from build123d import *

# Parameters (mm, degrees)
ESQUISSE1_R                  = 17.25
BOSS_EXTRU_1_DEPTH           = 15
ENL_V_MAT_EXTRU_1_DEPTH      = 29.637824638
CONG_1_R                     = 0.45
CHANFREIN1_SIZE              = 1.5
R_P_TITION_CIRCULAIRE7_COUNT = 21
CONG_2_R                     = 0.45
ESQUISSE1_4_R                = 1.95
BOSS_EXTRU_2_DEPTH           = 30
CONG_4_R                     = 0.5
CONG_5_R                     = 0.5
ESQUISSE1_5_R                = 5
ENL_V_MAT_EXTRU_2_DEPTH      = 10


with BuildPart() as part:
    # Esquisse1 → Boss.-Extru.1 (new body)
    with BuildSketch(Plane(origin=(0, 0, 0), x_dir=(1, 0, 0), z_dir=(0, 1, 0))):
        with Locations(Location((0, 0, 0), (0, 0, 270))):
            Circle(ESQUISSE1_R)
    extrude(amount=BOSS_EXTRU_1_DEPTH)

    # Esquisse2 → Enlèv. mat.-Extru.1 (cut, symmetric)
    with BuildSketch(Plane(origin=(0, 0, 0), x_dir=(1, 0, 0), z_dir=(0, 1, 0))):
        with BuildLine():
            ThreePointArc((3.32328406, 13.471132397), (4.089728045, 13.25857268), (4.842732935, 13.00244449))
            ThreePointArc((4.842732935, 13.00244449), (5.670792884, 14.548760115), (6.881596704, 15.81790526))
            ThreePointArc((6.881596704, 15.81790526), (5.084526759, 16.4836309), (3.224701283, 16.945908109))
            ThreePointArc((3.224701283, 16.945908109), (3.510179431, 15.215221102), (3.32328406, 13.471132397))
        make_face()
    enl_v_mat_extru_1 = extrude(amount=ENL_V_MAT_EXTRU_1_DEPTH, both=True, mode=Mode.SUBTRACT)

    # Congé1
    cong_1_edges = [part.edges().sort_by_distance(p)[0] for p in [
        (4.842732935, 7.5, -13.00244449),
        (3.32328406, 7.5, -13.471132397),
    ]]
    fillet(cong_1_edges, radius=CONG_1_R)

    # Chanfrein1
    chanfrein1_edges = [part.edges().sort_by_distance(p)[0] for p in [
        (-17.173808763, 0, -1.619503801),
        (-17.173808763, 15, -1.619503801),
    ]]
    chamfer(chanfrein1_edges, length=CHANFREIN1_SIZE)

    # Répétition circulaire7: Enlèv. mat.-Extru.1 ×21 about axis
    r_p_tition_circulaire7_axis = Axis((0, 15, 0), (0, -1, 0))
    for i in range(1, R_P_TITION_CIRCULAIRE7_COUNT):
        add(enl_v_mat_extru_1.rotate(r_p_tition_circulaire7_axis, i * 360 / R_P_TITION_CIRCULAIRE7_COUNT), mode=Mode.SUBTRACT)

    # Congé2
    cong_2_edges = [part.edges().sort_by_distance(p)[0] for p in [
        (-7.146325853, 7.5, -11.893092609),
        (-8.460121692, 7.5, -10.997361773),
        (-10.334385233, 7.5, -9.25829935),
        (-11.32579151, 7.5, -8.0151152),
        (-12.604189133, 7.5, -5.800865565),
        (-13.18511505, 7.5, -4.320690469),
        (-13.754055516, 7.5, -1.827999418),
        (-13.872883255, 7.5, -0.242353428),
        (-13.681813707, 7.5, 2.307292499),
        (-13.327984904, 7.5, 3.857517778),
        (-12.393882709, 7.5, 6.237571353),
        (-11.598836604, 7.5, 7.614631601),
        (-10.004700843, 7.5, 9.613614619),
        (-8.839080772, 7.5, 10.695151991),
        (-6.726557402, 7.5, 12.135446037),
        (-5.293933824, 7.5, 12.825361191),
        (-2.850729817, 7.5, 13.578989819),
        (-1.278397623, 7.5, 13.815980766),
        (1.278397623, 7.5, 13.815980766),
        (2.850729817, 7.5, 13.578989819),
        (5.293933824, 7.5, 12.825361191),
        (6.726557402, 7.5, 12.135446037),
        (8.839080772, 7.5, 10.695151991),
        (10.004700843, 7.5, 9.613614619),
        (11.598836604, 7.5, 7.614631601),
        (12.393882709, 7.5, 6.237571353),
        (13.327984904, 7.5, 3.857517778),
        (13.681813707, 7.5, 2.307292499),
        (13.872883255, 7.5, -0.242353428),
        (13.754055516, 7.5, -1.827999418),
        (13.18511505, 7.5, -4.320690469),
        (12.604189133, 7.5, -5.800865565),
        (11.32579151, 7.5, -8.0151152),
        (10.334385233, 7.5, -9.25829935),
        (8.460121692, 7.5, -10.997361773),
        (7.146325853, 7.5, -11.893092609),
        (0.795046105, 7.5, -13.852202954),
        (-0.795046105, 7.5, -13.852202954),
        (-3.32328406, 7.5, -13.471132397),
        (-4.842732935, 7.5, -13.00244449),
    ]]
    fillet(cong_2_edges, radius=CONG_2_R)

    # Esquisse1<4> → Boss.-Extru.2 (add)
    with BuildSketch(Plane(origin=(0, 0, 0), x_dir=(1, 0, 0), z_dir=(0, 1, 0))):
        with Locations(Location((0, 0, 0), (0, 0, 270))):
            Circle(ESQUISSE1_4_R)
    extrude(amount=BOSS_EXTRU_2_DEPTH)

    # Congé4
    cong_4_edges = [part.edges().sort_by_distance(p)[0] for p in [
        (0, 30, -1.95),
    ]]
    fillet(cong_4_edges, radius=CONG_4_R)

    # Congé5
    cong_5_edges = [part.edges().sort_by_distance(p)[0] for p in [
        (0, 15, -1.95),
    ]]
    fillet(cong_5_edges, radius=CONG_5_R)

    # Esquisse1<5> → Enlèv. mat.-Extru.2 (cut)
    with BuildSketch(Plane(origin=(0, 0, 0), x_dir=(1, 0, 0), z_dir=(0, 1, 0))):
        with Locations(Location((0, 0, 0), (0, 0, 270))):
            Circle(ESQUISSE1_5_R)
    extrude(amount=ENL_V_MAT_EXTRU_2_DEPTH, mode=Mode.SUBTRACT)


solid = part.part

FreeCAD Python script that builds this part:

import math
import FreeCAD as App
import Part
import Sketcher
Q = App.Units.Quantity


def edges_at(feature, points):
    """Names of the edges that pass closest to the given points."""
    edges = feature.Shape.Edges
    near = lambda p: min(range(len(edges)), key=lambda i: edges[i].distToShape(Part.Vertex(*p))[0])
    return sorted({f"Edge{near(p) + 1}" for p in points})

doc = App.newDocument("Part")
params = doc.addObject("Spreadsheet::Sheet", "Params")
for row, (alias, value) in enumerate([
    ("sketch1_diameter", "34.5 mm"),
    ("pad1_length", "15 mm"),
    ("sketch2_radius", "17.25 mm"),
    ("pocket1_length", "59.275649 mm"),
    ("fillet_radius", "0.45 mm"),
    ("chamfer_size", "1.5 mm"),
    ("fillet2_radius", "0.45 mm"),
    ("sketch3_diameter", "3.9 mm"),
    ("pad2_length", "30 mm"),
    ("fillet3_radius", "0.5 mm"),
    ("fillet4_radius", "0.5 mm"),
    ("sketch4_diameter", "10 mm"),
    ("pocket2_length", "10 mm"),
], start=1):
    params.set(f"A{row}", alias)
    params.set(f"B{row}", "=" + value)
    params.setAlias(f"B{row}", alias)

body = doc.addObject("PartDesign::Body", "Body")

sketch1 = doc.addObject("Sketcher::SketchObject", "Sketch")
body.addObject(sketch1)
sketch1.AttachmentSupport = (doc.XZ_Plane, [""])
sketch1.MapMode = "FlatFace"
sketch1.addGeometry(Part.Circle(App.Vector(0, 0, 0), App.Vector(0, 0, 1), 17), False)
sketch1.addConstraint([
    Sketcher.Constraint("Coincident", 0, 3, -1, 1),
    Sketcher.Constraint("Diameter", 0, Q("34.5 mm")),
])
sketch1.setExpression("Constraints[1]", "Params.sketch1_diameter")
pad1 = doc.addObject("PartDesign::Pad", "Pad")
body.addObject(pad1)
pad1.Profile = sketch1
pad1.setExpression("Length", "Params.pad1_length")
pad1.Reversed = True

sketch2 = doc.addObject("Sketcher::SketchObject", "Sketch001")
body.addObject(sketch2)
sketch2.AttachmentSupport = (doc.XZ_Plane, [""])
sketch2.MapMode = "FlatFace"
sketch2.addGeometry([
    Part.ArcOfCircle(Part.Circle(App.Vector(0, 0, 0), App.Vector(0, 0, 1), 13.9), math.radians(-76.14), math.radians(-69.57)),
    Part.ArcOfCircle(Part.Circle(App.Vector(10.9, -10.7, 0), App.Vector(0, 0, 1), 6.5), math.radians(-160), math.radians(-129)),
    Part.ArcOfCircle(Part.Circle(App.Vector(0, 0, 0), App.Vector(0, 0, 1), 17.2), math.radians(-79.23), math.radians(-66.49)),
    Part.ArcOfCircle(Part.Circle(App.Vector(-3, -15, 0), App.Vector(0, 0, 1), 6.5), math.radians(-17), math.radians(14)),
], False)
sketch2.addConstraint([
    Sketcher.Constraint("Coincident", 0, 2, 1, 1),
    Sketcher.Constraint("Coincident", 1, 2, 2, 2),
    Sketcher.Constraint("Coincident", 2, 1, 3, 1),
    Sketcher.Constraint("Coincident", 3, 2, 0, 1),
    Sketcher.Constraint("Coincident", 0, 3, -1, 1),
    Sketcher.Constraint("Coincident", 2, 3, -1, 1),
    Sketcher.Constraint("Equal", 1, 3),
    Sketcher.Constraint("Radius", 2, Q("17.25 mm")),
    Sketcher.Constraint("Radius", 0, Q("13.875 mm")),
    Sketcher.Constraint("DistanceY", 1, 3, -1, 1, Q("10.730001 mm")),
    Sketcher.Constraint("Radius", 1, Q("6.510818 mm")),
    Sketcher.Constraint("DistanceX", -1, 1, 2, 1, Q("3.224701 mm")),
    Sketcher.Constraint("DistanceX", 3, 3, -1, 1, Q("2.998019 mm")),
    Sketcher.Constraint("DistanceY", 1, 2, 0, 2, Q("2.815461 mm")),
])
sketch2.setExpression("Constraints[7]", "Params.sketch2_radius")
pocket1 = doc.addObject("PartDesign::Pocket", "Pocket")
body.addObject(pocket1)
pocket1.Profile = sketch2
pocket1.setExpression("Length", "Params.pocket1_length")
pocket1.Midplane = True
doc.recompute()

fillet = doc.addObject("PartDesign::Fillet", "Fillet")
body.addObject(fillet)
fillet.Base = (pocket1, edges_at(pocket1, [(4.843, 7.5, -13.002), (3.323, 7.5, -13.471)]))
fillet.setExpression("Radius", "Params.fillet_radius")
doc.recompute()

chamfer = doc.addObject("PartDesign::Chamfer", "Chamfer")
body.addObject(chamfer)
chamfer.Base = (fillet, edges_at(fillet, [(-17.174, 0, -1.62), (-17.174, 15, -1.62)]))
chamfer.setExpression("Size", "Params.chamfer_size")
doc.recompute()

polarpattern = doc.addObject("PartDesign::PolarPattern", "PolarPattern")
body.addObject(polarpattern)
polarpattern.Originals = [pocket1]
polarpattern.Axis = (doc.Y_Axis, [""])
polarpattern.Angle = 360
polarpattern.Occurrences = 21
body.Tip = polarpattern
doc.recompute()

fillet2 = doc.addObject("PartDesign::Fillet", "Fillet001")
body.addObject(fillet2)
fillet2.Base = (polarpattern, edges_at(polarpattern, [
    (-7.146, 7.5, -11.893),
    (-8.46, 7.5, -10.997),
    (-10.334, 7.5, -9.258),
    (-11.326, 7.5, -8.015),
    (-12.604, 7.5, -5.801),
    (-13.185, 7.5, -4.321),
    (-13.754, 7.5, -1.828),
    (-13.873, 7.5, -0.242),
    (-13.682, 7.5, 2.307),
    (-13.328, 7.5, 3.858),
    (-12.394, 7.5, 6.238),
    (-11.599, 7.5, 7.615),
    (-10.005, 7.5, 9.614),
    (-8.839, 7.5, 10.695),
    (-6.727, 7.5, 12.135),
    (-5.294, 7.5, 12.825),
    (-2.851, 7.5, 13.579),
    (-1.278, 7.5, 13.816),
    (1.278, 7.5, 13.816),
    (2.851, 7.5, 13.579),
    (5.294, 7.5, 12.825),
    (6.727, 7.5, 12.135),
    (8.839, 7.5, 10.695),
    (10.005, 7.5, 9.614),
    (11.599, 7.5, 7.615),
    (12.394, 7.5, 6.238),
    (13.328, 7.5, 3.858),
    (13.682, 7.5, 2.307),
    (13.873, 7.5, -0.242),
    (13.754, 7.5, -1.828),
    (13.185, 7.5, -4.321),
    (12.604, 7.5, -5.801),
    (11.326, 7.5, -8.015),
    (10.334, 7.5, -9.258),
    (8.46, 7.5, -10.997),
    (7.146, 7.5, -11.893),
    (0.795, 7.5, -13.852),
    (-0.795, 7.5, -13.852),
    (-3.323, 7.5, -13.471),
    (-4.843, 7.5, -13.002),
]))
fillet2.setExpression("Radius", "Params.fillet2_radius")

sketch3 = doc.addObject("Sketcher::SketchObject", "Sketch002")
body.addObject(sketch3)
sketch3.AttachmentSupport = (doc.XZ_Plane, [""])
sketch3.MapMode = "FlatFace"
sketch3.addGeometry(Part.Circle(App.Vector(0, 0, 0), App.Vector(0, 0, 1), 1.9), False)
sketch3.addConstraint([
    Sketcher.Constraint("Coincident", 0, 3, -1, 1),
    Sketcher.Constraint("Diameter", 0, Q("3.9 mm")),
])
sketch3.setExpression("Constraints[1]", "Params.sketch3_diameter")
pad2 = doc.addObject("PartDesign::Pad", "Pad001")
body.addObject(pad2)
pad2.Profile = sketch3
pad2.setExpression("Length", "Params.pad2_length")
pad2.Reversed = True
doc.recompute()

fillet3 = doc.addObject("PartDesign::Fillet", "Fillet002")
body.addObject(fillet3)
fillet3.Base = (pad2, edges_at(pad2, [(0, 30, -1.95)]))
fillet3.setExpression("Radius", "Params.fillet3_radius")
doc.recompute()

fillet4 = doc.addObject("PartDesign::Fillet", "Fillet003")
body.addObject(fillet4)
fillet4.Base = (fillet3, edges_at(fillet3, [(0, 15, -1.95)]))
fillet4.setExpression("Radius", "Params.fillet4_radius")

sketch4 = doc.addObject("Sketcher::SketchObject", "Sketch003")
body.addObject(sketch4)
sketch4.AttachmentSupport = (doc.XZ_Plane, [""])
sketch4.MapMode = "FlatFace"
sketch4.addGeometry(Part.Circle(App.Vector(0, 0, 0), App.Vector(0, 0, 1), 5), False)
sketch4.addConstraint([
    Sketcher.Constraint("Coincident", 0, 3, -1, 1),
    Sketcher.Constraint("Diameter", 0, Q("10 mm")),
])
sketch4.setExpression("Constraints[1]", "Params.sketch4_diameter")
pocket2 = doc.addObject("PartDesign::Pocket", "Pocket001")
body.addObject(pocket2)
pocket2.Profile = sketch4
pocket2.setExpression("Length", "Params.pocket2_length")

doc.recompute()
